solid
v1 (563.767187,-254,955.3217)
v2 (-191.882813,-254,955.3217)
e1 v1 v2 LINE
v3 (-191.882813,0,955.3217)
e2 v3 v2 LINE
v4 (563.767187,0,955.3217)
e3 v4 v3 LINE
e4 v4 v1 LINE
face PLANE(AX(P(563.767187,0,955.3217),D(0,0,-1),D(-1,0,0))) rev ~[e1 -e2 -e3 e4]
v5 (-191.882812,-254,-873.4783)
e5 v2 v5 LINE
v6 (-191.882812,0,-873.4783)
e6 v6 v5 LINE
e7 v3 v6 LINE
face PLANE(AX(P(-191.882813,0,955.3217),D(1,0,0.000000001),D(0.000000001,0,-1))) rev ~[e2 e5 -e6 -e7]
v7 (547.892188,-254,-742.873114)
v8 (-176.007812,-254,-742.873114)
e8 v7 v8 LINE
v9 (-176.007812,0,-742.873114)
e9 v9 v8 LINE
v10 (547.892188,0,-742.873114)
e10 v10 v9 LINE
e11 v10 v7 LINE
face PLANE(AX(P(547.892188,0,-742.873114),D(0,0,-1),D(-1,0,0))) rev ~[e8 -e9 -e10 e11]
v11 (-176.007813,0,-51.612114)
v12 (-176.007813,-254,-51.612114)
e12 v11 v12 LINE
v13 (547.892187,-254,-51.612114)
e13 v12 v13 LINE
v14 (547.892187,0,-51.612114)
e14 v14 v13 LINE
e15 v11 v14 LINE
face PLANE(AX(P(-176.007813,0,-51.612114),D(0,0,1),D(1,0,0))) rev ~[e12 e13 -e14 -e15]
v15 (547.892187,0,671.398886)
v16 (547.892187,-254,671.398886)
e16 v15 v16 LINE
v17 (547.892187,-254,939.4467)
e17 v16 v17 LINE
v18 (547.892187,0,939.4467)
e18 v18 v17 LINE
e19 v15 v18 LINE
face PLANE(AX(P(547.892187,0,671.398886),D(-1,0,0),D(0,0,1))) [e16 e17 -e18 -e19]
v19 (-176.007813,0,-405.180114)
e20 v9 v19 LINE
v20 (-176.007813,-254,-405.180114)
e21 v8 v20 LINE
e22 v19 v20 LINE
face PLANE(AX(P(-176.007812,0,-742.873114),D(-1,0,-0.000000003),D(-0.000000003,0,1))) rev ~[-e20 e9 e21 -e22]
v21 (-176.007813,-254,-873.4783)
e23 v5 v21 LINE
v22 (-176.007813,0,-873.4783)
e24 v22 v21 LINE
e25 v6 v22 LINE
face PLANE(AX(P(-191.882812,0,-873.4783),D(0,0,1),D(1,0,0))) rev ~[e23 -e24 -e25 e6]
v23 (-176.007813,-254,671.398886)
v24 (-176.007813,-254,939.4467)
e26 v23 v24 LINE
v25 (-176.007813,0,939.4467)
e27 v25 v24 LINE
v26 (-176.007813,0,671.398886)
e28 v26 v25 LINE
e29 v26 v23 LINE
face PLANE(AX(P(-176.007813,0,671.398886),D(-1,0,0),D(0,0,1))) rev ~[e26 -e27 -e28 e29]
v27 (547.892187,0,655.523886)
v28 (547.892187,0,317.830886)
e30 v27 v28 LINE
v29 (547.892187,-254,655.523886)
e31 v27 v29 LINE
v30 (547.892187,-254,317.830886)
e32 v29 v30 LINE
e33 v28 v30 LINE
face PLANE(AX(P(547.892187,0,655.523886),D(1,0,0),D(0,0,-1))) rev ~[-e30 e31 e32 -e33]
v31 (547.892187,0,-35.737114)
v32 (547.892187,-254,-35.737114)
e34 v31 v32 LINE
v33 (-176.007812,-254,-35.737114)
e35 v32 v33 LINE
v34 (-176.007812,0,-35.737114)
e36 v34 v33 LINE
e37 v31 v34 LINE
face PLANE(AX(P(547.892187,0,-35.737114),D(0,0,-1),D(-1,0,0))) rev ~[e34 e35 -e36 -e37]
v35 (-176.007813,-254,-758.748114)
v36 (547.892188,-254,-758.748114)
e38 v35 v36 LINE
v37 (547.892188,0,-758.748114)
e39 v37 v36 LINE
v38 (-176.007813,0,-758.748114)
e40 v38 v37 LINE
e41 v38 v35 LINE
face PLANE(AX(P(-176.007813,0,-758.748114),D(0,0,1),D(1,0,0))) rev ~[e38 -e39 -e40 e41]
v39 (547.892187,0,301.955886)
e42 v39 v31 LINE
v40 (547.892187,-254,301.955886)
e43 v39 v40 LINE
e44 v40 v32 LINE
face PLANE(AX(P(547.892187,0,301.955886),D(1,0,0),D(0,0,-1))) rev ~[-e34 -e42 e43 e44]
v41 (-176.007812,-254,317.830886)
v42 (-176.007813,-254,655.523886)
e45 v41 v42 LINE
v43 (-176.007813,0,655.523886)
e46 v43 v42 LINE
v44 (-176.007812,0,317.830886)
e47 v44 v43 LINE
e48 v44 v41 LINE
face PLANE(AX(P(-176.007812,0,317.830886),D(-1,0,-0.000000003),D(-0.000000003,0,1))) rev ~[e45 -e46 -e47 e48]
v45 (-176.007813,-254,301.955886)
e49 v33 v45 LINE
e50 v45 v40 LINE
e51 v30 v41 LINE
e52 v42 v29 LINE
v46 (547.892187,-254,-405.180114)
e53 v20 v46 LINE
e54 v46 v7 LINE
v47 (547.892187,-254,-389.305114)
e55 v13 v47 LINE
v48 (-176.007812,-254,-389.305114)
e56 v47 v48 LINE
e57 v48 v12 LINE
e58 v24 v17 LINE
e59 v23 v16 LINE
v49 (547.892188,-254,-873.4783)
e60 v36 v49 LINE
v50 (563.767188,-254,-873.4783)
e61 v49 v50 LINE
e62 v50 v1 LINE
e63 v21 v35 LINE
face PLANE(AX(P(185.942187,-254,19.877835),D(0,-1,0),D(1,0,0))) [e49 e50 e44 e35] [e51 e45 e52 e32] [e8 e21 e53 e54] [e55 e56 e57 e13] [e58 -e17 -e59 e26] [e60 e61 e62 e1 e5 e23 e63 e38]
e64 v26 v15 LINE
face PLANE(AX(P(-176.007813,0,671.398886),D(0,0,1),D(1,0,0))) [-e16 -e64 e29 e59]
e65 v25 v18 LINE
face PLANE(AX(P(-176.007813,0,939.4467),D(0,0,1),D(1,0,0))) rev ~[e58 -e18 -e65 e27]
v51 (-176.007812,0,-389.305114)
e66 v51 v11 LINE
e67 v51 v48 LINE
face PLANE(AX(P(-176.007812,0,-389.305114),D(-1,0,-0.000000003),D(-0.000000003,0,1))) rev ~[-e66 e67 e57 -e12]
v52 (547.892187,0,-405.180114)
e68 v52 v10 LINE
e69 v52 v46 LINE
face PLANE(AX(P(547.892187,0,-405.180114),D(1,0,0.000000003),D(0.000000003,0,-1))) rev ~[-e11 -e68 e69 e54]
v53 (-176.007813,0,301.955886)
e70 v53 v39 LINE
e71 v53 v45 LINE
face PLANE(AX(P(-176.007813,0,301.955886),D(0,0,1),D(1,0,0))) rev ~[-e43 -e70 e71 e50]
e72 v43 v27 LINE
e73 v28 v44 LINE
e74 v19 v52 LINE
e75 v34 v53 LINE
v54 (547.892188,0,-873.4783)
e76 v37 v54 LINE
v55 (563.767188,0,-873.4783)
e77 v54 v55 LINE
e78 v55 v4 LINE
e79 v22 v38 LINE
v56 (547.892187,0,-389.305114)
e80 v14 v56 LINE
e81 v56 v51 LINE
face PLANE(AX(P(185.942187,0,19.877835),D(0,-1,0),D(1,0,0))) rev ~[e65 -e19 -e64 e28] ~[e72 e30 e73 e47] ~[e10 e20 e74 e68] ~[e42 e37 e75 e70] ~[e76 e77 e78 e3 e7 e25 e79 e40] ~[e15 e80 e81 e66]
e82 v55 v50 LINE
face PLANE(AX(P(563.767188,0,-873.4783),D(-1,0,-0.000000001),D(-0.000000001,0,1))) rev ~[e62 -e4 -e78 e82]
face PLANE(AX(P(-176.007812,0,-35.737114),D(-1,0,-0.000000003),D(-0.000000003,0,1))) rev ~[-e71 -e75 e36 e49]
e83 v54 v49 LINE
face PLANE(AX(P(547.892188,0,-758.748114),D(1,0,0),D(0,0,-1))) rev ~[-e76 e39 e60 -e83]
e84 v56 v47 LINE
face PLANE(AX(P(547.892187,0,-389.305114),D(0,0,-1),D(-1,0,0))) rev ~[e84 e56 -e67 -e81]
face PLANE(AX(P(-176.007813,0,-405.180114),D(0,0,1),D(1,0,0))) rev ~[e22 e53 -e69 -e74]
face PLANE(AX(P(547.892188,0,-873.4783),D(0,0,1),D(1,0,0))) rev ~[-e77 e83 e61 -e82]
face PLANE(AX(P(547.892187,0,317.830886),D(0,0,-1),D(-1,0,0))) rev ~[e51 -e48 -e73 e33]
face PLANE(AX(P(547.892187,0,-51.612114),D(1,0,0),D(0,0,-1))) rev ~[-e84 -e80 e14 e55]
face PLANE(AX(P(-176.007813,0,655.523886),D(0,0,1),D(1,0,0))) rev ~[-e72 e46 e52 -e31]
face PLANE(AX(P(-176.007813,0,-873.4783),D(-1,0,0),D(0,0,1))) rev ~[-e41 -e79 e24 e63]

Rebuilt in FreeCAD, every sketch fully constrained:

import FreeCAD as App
import Part
import Sketcher
from FreeCAD import Vector
Q = App.Units.Quantity

doc = App.newDocument("Part")
body = doc.addObject("PartDesign::Body", "Body")

# Sketch on XZ plane
sketch1 = body.newObject("Sketcher::SketchObject", "Sketch")
sketch1.AttachmentSupport = (doc.getObject("XZ_Plane"), [""])
sketch1.MapMode = "FlatFace"
sketch1.addGeometry([
    Part.LineSegment(Vector(548, -873, 0), Vector(564, -873, 0)),  # 0
    Part.LineSegment(Vector(564, -873, 0), Vector(564, 955, 0)),  # 1
    Part.LineSegment(Vector(564, 955, 0), Vector(-192, 955, 0)),  # 2
    Part.LineSegment(Vector(-192, 955, 0), Vector(-192, -873, 0)),  # 3
    Part.LineSegment(Vector(-192, -873, 0), Vector(-176, -873, 0)),  # 4
    Part.LineSegment(Vector(-176, -873, 0), Vector(-176, -759, 0)),  # 5
    Part.LineSegment(Vector(-176, -759, 0), Vector(548, -759, 0)),  # 6
    Part.LineSegment(Vector(548, -759, 0), Vector(548, -873, 0)),  # 7
    Part.LineSegment(Vector(548, -52, 0), Vector(548, -389, 0)),  # 8
    Part.LineSegment(Vector(548, -389, 0), Vector(-176, -389, 0)),  # 9
    Part.LineSegment(Vector(-176, -389, 0), Vector(-176, -52, 0)),  # 10
    Part.LineSegment(Vector(-176, -52, 0), Vector(548, -52, 0)),  # 11
    Part.LineSegment(Vector(548, -405, 0), Vector(548, -743, 0)),  # 12
    Part.LineSegment(Vector(548, -743, 0), Vector(-176, -743, 0)),  # 13
    Part.LineSegment(Vector(-176, -743, 0), Vector(-176, -405, 0)),  # 14
    Part.LineSegment(Vector(-176, -405, 0), Vector(548, -405, 0)),  # 15
    Part.LineSegment(Vector(548, 302, 0), Vector(548, -36, 0)),  # 16
    Part.LineSegment(Vector(548, -36, 0), Vector(-176, -36, 0)),  # 17
    Part.LineSegment(Vector(-176, -36, 0), Vector(-176, 302, 0)),  # 18
    Part.LineSegment(Vector(-176, 302, 0), Vector(548, 302, 0)),  # 19
    Part.LineSegment(Vector(548, 656, 0), Vector(548, 318, 0)),  # 20
    Part.LineSegment(Vector(548, 318, 0), Vector(-176, 318, 0)),  # 21
    Part.LineSegment(Vector(-176, 318, 0), Vector(-176, 656, 0)),  # 22
    Part.LineSegment(Vector(-176, 656, 0), Vector(548, 656, 0)),  # 23
    Part.LineSegment(Vector(548, 671, 0), Vector(-176, 671, 0)),  # 24
    Part.LineSegment(Vector(-176, 671, 0), Vector(-176, 939, 0)),  # 25
    Part.LineSegment(Vector(-176, 939, 0), Vector(548, 939, 0)),  # 26
    Part.LineSegment(Vector(548, 939, 0), Vector(548, 671, 0)),  # 27
], False)
sketch1.addConstraint([
    Sketcher.Constraint("Coincident", 0, 2, 1, 1),
    Sketcher.Constraint("Coincident", 1, 2, 2, 1),
    Sketcher.Constraint("Coincident", 2, 2, 3, 1),
    Sketcher.Constraint("Coincident", 3, 2, 4, 1),
    Sketcher.Constraint("Coincident", 4, 2, 5, 1),
    Sketcher.Constraint("Coincident", 5, 2, 6, 1),
    Sketcher.Constraint("Coincident", 6, 2, 7, 1),
    Sketcher.Constraint("Coincident", 7, 2, 0, 1),
    Sketcher.Constraint("Coincident", 8, 2, 9, 1),
    Sketcher.Constraint("Coincident", 9, 2, 10, 1),
    Sketcher.Constraint("Coincident", 10, 2, 11, 1),
    Sketcher.Constraint("Coincident", 11, 2, 8, 1),
    Sketcher.Constraint("Coincident", 12, 2, 13, 1),
    Sketcher.Constraint("Coincident", 13, 2, 14, 1),
    Sketcher.Constraint("Coincident", 14, 2, 15, 1),
    Sketcher.Constraint("Coincident", 15, 2, 12, 1),
    Sketcher.Constraint("Coincident", 16, 2, 17, 1),
    Sketcher.Constraint("Coincident", 17, 2, 18, 1),
    Sketcher.Constraint("Coincident", 18, 2, 19, 1),
    Sketcher.Constraint("Coincident", 19, 2, 16, 1),
    Sketcher.Constraint("Coincident", 20, 2, 21, 1),
    Sketcher.Constraint("Coincident", 21, 2, 22, 1),
    Sketcher.Constraint("Coincident", 22, 2, 23, 1),
    Sketcher.Constraint("Coincident", 23, 2, 20, 1),
    Sketcher.Constraint("Coincident", 24, 2, 25, 1),
    Sketcher.Constraint("Coincident", 25, 2, 26, 1),
    Sketcher.Constraint("Coincident", 26, 2, 27, 1),
    Sketcher.Constraint("Coincident", 27, 2, 24, 1),
    Sketcher.Constraint("Horizontal", 0),
    Sketcher.Constraint("Vertical", 1),
    Sketcher.Constraint("Horizontal", 2),
    Sketcher.Constraint("Vertical", 3),
    Sketcher.Constraint("Horizontal", 4),
    Sketcher.Constraint("Vertical", 5),
    Sketcher.Constraint("Horizontal", 6),
    Sketcher.Constraint("Vertical", 7),
    Sketcher.Constraint("Vertical", 8),
    Sketcher.Constraint("Horizontal", 9),
    Sketcher.Constraint("Vertical", 10),
    Sketcher.Constraint("Horizontal", 11),
    Sketcher.Constraint("Vertical", 12),
    Sketcher.Constraint("Horizontal", 13),
    Sketcher.Constraint("Vertical", 14),
    Sketcher.Constraint("Horizontal", 15),
    Sketcher.Constraint("Vertical", 16),
    Sketcher.Constraint("Horizontal", 17),
    Sketcher.Constraint("Vertical", 18),
    Sketcher.Constraint("Horizontal", 19),
    Sketcher.Constraint("Vertical", 20),
    Sketcher.Constraint("Horizontal", 21),
    Sketcher.Constraint("Vertical", 22),
    Sketcher.Constraint("Horizontal", 23),
    Sketcher.Constraint("Horizontal", 24),
    Sketcher.Constraint("Vertical", 25),
    Sketcher.Constraint("Horizontal", 26),
    Sketcher.Constraint("Vertical", 27),
    Sketcher.Constraint("Horizontal", 0, 2, 3, 2),
    Sketcher.Constraint("Vertical", 7, 2, 8, 2),
    Sketcher.Constraint("Vertical", 5, 2, 9, 2),
    Sketcher.Constraint("Vertical", 11, 2, 12, 2),
    Sketcher.Constraint("Vertical", 10, 2, 13, 2),
    Sketcher.Constraint("Vertical", 15, 2, 16, 2),
    Sketcher.Constraint("Vertical", 14, 2, 17, 2),
    Sketcher.Constraint("Vertical", 19, 2, 20, 2),
    Sketcher.Constraint("Vertical", 18, 2, 21, 2),
    Sketcher.Constraint("Vertical", 22, 2, 24, 2),
    Sketcher.Constraint("Vertical", 23, 2, 26, 2),
    Sketcher.Constraint("Equal", 0, 4),
    Sketcher.Constraint("Equal", 10, 12),
    Sketcher.Constraint("Equal", 14, 16),
    Sketcher.Constraint("Equal", 18, 20),
    Sketcher.Constraint("DistanceY", 1, 1, 1, 2, Q("72 in")),
    Sketcher.Constraint("DistanceX", 6, 1, 6, 2, Q("28.5 in")),
    Sketcher.Constraint("DistanceX", 2, 2, 2, 1, Q("29.75 in")),
    Sketcher.Constraint("DistanceY", 8, 2, 8, 1, Q("13.295 in")),
    Sketcher.Constraint("DistanceY", 5, 2, 10, 2, Q("27.84 in")),
    Sketcher.Constraint("DistanceY", 12, 2, 8, 2, Q("13.92 in")),
    Sketcher.Constraint("DistanceY", 8, 2, 16, 2, Q("13.92 in")),
    Sketcher.Constraint("DistanceY", 16, 2, 20, 2, Q("13.92 in")),
    Sketcher.Constraint("DistanceY", 21, 2, 24, 2, Q("13.92 in")),
    Sketcher.Constraint("DistanceY", 25, 2, 2, 2, Q("0.625 in")),
    Sketcher.Constraint("DistanceY", 0, 2, -1, 1, 873.4783),
    Sketcher.Constraint("DistanceY", 5, 1, 5, 2, 114.730186),
    Sketcher.Constraint("DistanceX", -1, 1, 0, 2, 563.767188),
])
pad1 = body.newObject("PartDesign::Pad", "Pad")
pad1.Profile = sketch1
pad1.Length = Q("10 in")

doc.recompute()
